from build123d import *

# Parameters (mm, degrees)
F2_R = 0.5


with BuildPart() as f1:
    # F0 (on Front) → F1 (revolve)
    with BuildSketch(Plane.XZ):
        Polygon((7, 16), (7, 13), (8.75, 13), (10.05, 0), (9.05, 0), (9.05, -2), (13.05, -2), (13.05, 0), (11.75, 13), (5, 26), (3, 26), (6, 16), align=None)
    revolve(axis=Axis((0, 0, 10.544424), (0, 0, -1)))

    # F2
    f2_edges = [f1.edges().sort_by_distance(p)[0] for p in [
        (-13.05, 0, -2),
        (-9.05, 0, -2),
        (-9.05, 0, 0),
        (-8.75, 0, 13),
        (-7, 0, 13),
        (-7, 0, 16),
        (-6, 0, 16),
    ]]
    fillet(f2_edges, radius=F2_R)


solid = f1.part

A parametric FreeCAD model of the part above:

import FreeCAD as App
import Part
import Sketcher
from FreeCAD import Vector


def edges_at(feature, points):
    """Names of the edges that pass closest to the given points."""
    edges = feature.Shape.Edges
    near = lambda p: min(range(len(edges)), key=lambda i: edges[i].distToShape(Part.Vertex(*p))[0])
    return sorted({f"Edge{near(p) + 1}" for p in points})

doc = App.newDocument("Part")
body = doc.addObject("PartDesign::Body", "Body")

# Sketch on XZ plane
sketch1 = body.newObject("Sketcher::SketchObject", "Sketch")
sketch1.AttachmentSupport = (doc.getObject("XZ_Plane"), [""])
sketch1.MapMode = "FlatFace"
sketch1.addGeometry([
    Part.LineSegment(Vector(7, 16, 0), Vector(7, 13, 0)),  # 0
    Part.LineSegment(Vector(7, 13, 0), Vector(8.75, 13, 0)),  # 1
    Part.LineSegment(Vector(8.75, 13, 0), Vector(10.05, 0, 0)),  # 2
    Part.LineSegment(Vector(10.05, 0, 0), Vector(9.05, 0, 0)),  # 3
    Part.LineSegment(Vector(9.05, 0, 0), Vector(9.05, -2, 0)),  # 4
    Part.LineSegment(Vector(9.05, -2, 0), Vector(13.05, -2, 0)),  # 5
    Part.LineSegment(Vector(13.05, -2, 0), Vector(13.05, 0, 0)),  # 6
    Part.LineSegment(Vector(13.05, 0, 0), Vector(11.75, 13, 0)),  # 7
    Part.LineSegment(Vector(11.75, 13, 0), Vector(5, 26, 0)),  # 8
    Part.LineSegment(Vector(5, 26, 0), Vector(3, 26, 0)),  # 9
    Part.LineSegment(Vector(3, 26, 0), Vector(6, 16, 0)),  # 10
    Part.LineSegment(Vector(6, 16, 0), Vector(7, 16, 0)),  # 11
], False)
sketch1.addConstraint([
    Sketcher.Constraint("Coincident", 0, 2, 1, 1),
    Sketcher.Constraint("Coincident", 1, 2, 2, 1),
    Sketcher.Constraint("Coincident", 2, 2, 3, 1),
    Sketcher.Constraint("Coincident", 3, 2, 4, 1),
    Sketcher.Constraint("Coincident", 4, 2, 5, 1),
    Sketcher.Constraint("Coincident", 5, 2, 6, 1),
    Sketcher.Constraint("Coincident", 6, 2, 7, 1),
    Sketcher.Constraint("Coincident", 7, 2, 8, 1),
    Sketcher.Constraint("Coincident", 8, 2, 9, 1),
    Sketcher.Constraint("Coincident", 9, 2, 10, 1),
    Sketcher.Constraint("Coincident", 10, 2, 11, 1),
    Sketcher.Constraint("Coincident", 11, 2, 0, 1),
    Sketcher.Constraint("Vertical", 0),
    Sketcher.Constraint("Horizontal", 1),
    Sketcher.Constraint("Horizontal", 3),
    Sketcher.Constraint("Vertical", 4),
    Sketcher.Constraint("Horizontal", 5),
    Sketcher.Constraint("Vertical", 6),
    Sketcher.Constraint("Horizontal", 9),
    Sketcher.Constraint("Horizontal", 11),
    Sketcher.Constraint("PointOnObject", 2, 2, -1),
    Sketcher.Constraint("PointOnObject", 6, 2, -1),
    Sketcher.Constraint("Parallel", 2, 7),
    Sketcher.Constraint("Horizontal", 1, 2, 7, 2),
    Sketcher.Constraint("Equal", 3, 11),
    Sketcher.Constraint("Equal", 9, 4),
    Sketcher.Constraint("DistanceX", 3, 2, 3, 1, 1.0),
    Sketcher.Constraint("DistanceX", 5, 1, 5, 2, 4.0),
    Sketcher.Constraint("DistanceX", 9, 2, 9, 1, 2.0),
    Sketcher.Constraint("DistanceY", 0, 2, 0, 1, 3.0),
    Sketcher.Constraint("DistanceX", -1, 1, 0, 2, 7.0),
    Sketcher.Constraint("DistanceY", -1, 1, 0, 2, 13.0),
    Sketcher.Constraint("DistanceX", -1, 1, 8, 2, 5.0),
    Sketcher.Constraint("DistanceY", -1, 1, 8, 2, 26.0),
    Sketcher.Constraint("DistanceX", 1, 1, 1, 2, 1.75),
    Sketcher.Constraint("DistanceX", 1, 2, 2, 2, 1.3),
])
revolution = body.newObject("PartDesign::Revolution", "Revolution")
revolution.Profile = sketch1
revolution.ReferenceAxis = (sketch1, ["V_Axis"])
revolution.Angle = 360
doc.recompute()

fillet = body.newObject("PartDesign::Fillet", "Fillet")
fillet.Base = (revolution, edges_at(revolution, [
    (-13.05, 0, -2),
    (-9.05, 0, -2),
    (-9.05, 0, 0),
    (-8.75, 0, 13),
    (-7, 0, 13),
    (-7, 0, 16),
    (-6, 0, 16),
]))
fillet.Radius = 0.5

doc.recompute()
